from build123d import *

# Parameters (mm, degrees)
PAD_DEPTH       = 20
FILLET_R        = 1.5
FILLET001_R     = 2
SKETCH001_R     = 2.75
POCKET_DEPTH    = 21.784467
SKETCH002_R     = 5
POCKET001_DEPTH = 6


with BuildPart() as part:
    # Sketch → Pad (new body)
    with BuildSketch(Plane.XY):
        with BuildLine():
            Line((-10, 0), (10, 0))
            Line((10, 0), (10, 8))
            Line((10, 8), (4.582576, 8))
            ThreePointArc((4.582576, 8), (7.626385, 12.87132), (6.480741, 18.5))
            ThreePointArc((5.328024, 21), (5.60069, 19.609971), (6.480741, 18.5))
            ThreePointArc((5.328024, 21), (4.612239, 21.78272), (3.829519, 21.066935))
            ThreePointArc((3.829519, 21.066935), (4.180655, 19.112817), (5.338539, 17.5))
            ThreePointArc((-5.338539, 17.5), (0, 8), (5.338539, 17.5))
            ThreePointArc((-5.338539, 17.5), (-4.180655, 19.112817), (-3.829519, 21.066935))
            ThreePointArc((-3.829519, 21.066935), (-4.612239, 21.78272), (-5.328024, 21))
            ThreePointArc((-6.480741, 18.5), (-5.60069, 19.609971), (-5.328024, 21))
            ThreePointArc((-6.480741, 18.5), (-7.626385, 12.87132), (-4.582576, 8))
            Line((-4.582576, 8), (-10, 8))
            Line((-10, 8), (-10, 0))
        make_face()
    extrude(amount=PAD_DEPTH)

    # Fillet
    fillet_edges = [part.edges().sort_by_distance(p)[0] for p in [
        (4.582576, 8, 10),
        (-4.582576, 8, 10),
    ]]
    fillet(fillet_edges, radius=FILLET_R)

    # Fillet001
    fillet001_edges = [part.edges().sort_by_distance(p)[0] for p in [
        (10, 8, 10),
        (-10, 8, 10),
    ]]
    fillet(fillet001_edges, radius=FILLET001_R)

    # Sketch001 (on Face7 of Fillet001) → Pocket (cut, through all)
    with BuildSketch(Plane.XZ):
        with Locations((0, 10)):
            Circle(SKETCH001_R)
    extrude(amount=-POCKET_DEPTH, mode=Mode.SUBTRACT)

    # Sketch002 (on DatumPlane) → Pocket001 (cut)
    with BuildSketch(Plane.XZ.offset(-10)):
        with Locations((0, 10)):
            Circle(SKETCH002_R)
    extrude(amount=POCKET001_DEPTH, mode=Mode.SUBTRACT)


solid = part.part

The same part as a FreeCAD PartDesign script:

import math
import FreeCAD as App
import Part
import Sketcher
from FreeCAD import Vector
Q = App.Units.Quantity


def edges_at(feature, points):
    """Names of the edges that pass closest to the given points."""
    edges = feature.Shape.Edges
    near = lambda p: min(range(len(edges)), key=lambda i: edges[i].distToShape(Part.Vertex(*p))[0])
    return sorted({f"Edge{near(p) + 1}" for p in points})

doc = App.newDocument("Part")
body = doc.addObject("PartDesign::Body", "Body")

sketch1 = body.newObject("Sketcher::SketchObject", "Sketch")
sketch1.AttachmentSupport = (doc.getObject("XY_Plane"), [""])
sketch1.MapMode = "FlatFace"
sketch1.addGeometry(Part.LineSegment(Vector(-10, 0, 0), Vector(10, 0, 0)), False)
sketch1.addGeometry(Part.LineSegment(Vector(10, 0, 0), Vector(10, 8, 0)), False)
sketch1.addGeometry(Part.LineSegment(Vector(10, 8, 0), Vector(4.6, 8, 0)), False)
sketch1.addGeometry(Part.ArcOfCircle(Part.Circle(Vector(0, 14.2, 0), Vector(0, 0, 1), 7.7), math.radians(-54), math.radians(33)), False)
sketch1.addGeometry(Part.ArcOfCircle(Part.Circle(Vector(8.3, 20.9, 0), Vector(0, 0, 1), 3), math.radians(177), math.radians(232)), False)
sketch1.addGeometry(Part.ArcOfCircle(Part.Circle(Vector(4.6, 21, 0), Vector(0, 0, 1), 0.7), math.radians(-3), math.radians(177)), False)
sketch1.addGeometry(Part.ArcOfCircle(Part.Circle(Vector(8.3, 20.9, 0), Vector(0, 0, 1), 4.5), math.radians(177), math.radians(228)), False)
sketch1.addGeometry(Part.ArcOfCircle(Part.Circle(Vector(0, 14.2, 0), Vector(0, 0, 1), 6.2), math.radians(149), math.radians(391)), False)
sketch1.addGeometry(Part.ArcOfCircle(Part.Circle(Vector(-8.3, 20.9, 0), Vector(0, 0, 1), 4.5), math.radians(-48), math.radians(3)), False)
sketch1.addGeometry(Part.ArcOfCircle(Part.Circle(Vector(-4.6, 21, 0), Vector(0, 0, 1), 0.7), math.radians(3), math.radians(183)), False)
sketch1.addGeometry(Part.ArcOfCircle(Part.Circle(Vector(-8.3, 20.9, 0), Vector(0, 0, 1), 3), math.radians(-52), math.radians(3)), False)
sketch1.addGeometry(Part.ArcOfCircle(Part.Circle(Vector(0, 14.2, 0), Vector(0, 0, 1), 7.7), math.radians(147), math.radians(234)), False)
sketch1.addGeometry(Part.LineSegment(Vector(-4.6, 8, 0), Vector(-10, 8, 0)), False)
sketch1.addGeometry(Part.LineSegment(Vector(-10, 8, 0), Vector(-10, 0, 0)), False)
sketch1.addConstraint(Sketcher.Constraint("Coincident", 0, 2, 1, 1))
sketch1.addConstraint(Sketcher.Constraint("Coincident", 1, 2, 2, 1))
sketch1.addConstraint(Sketcher.Constraint("Coincident", 2, 2, 3, 1))
sketch1.addConstraint(Sketcher.Constraint("Coincident", 3, 2, 4, 2))
sketch1.addConstraint(Sketcher.Constraint("Tangent", 4, 1, 5, 1))
sketch1.addConstraint(Sketcher.Constraint("Tangent", 5, 2, 6, 1))
sketch1.addConstraint(Sketcher.Constraint("Coincident", 6, 2, 7, 2))
sketch1.addConstraint(Sketcher.Constraint("Coincident", 7, 1, 8, 1))
sketch1.addConstraint(Sketcher.Constraint("Tangent", 8, 2, 9, 1))
sketch1.addConstraint(Sketcher.Constraint("Tangent", 9, 2, 10, 2))
sketch1.addConstraint(Sketcher.Constraint("Coincident", 10, 1, 11, 1))
sketch1.addConstraint(Sketcher.Constraint("Coincident", 11, 2, 12, 1))
sketch1.addConstraint(Sketcher.Constraint("Coincident", 12, 2, 13, 1))
sketch1.addConstraint(Sketcher.Constraint("Coincident", 13, 2, 0, 1))
sketch1.addConstraint(Sketcher.Constraint("Horizontal", 0))
sketch1.addConstraint(Sketcher.Constraint("Vertical", 1))
sketch1.addConstraint(Sketcher.Constraint("Horizontal", 2))
sketch1.addConstraint(Sketcher.Constraint("Horizontal", 12))
sketch1.addConstraint(Sketcher.Constraint("Vertical", 13))
sketch1.addConstraint(Sketcher.Constraint("Coincident", 6, 3, 4, 3))
sketch1.addConstraint(Sketcher.Constraint("Coincident", 7, 3, 3, 3))
sketch1.addConstraint(Sketcher.Constraint("Coincident", 10, 3, 8, 3))
sketch1.addConstraint(Sketcher.Constraint("Coincident", 11, 3, 3, 3))
sketch1.addConstraint(Sketcher.Constraint("Equal", 6, 8))
sketch1.addConstraint(Sketcher.Constraint("Equal", 5, 9))
sketch1.addConstraint(Sketcher.Constraint("Equal", 3, 11))
sketch1.addConstraint(Sketcher.Constraint("Symmetric", 0, 2, 13, 2, -1, 1))
sketch1.addConstraint(Sketcher.Constraint("Symmetric", 4, 3, 8, 3, -2))
sketch1.addConstraint(Sketcher.Constraint("Symmetric", 2, 2, 11, 2, -2))
sketch1.addConstraint(Sketcher.Constraint("Horizontal", 5, 3, 9, 3))
sketch1.addConstraint(Sketcher.Constraint("DistanceX", 0, 1, 0, 2, Q("20 mm")))
sketch1.addConstraint(Sketcher.Constraint("DistanceY", 1, 1, 1, 2, Q("8 mm")))
sketch1.addConstraint(Sketcher.Constraint("Radius", 3, Q("7.75 mm")))
sketch1.addConstraint(Sketcher.Constraint("Radius", 5, Q("0.75 mm")))
sketch1.addConstraint(Sketcher.Constraint("Radius", 7, Q("6.25 mm")))
sketch1.addConstraint(Sketcher.Constraint("DistanceY", -1, 1, 4, 1, Q("21 mm")))
sketch1.addConstraint(Sketcher.Constraint("DistanceY", 6, 2, 3, 2, Q("1 mm")))
sketch1.addConstraint(Sketcher.Constraint("DistanceY", -1, 1, 3, 2, Q("18.5 mm")))
sketch1.addConstraint(Sketcher.Constraint("DistanceY", -1, 1, 3, 3, Q("14.25 mm")))
sketch1.addConstraint(Sketcher.Constraint("Radius", 4, Q("3.000003 mm")))
pad1 = body.newObject("PartDesign::Pad", "Pad")
pad1.Profile = sketch1
pad1.Length = 20
doc.recompute()

fillet = body.newObject("PartDesign::Fillet", "Fillet")
fillet.Base = (pad1, edges_at(pad1, [(4.583, 8, 10), (-4.583, 8, 10)]))
fillet.Radius = 1.5
doc.recompute()

fillet2 = body.newObject("PartDesign::Fillet", "Fillet001")
fillet2.Base = (fillet, edges_at(fillet, [(10, 8, 10), (-10, 8, 10)]))
fillet2.Radius = 2

sketch2 = body.newObject("Sketcher::SketchObject", "Sketch001")
sketch2.AttachmentSupport = (doc.getObject("XZ_Plane"), [""])
sketch2.MapMode = "FlatFace"
sketch2.addGeometry(Part.Circle(Vector(0, 10, 0), Vector(0, 0, 1), 2.8), False)
sketch2.addConstraint(Sketcher.Constraint("PointOnObject", 0, 3, -2))
sketch2.addConstraint(Sketcher.Constraint("Diameter", 0, Q("5.5 mm")))
sketch2.addConstraint(Sketcher.Constraint("DistanceY", -1, 1, 0, 3, Q("10 mm")))
pocket1 = body.newObject("PartDesign::Pocket", "Pocket")
pocket1.Profile = sketch2
pocket1.Type = "ThroughAll"

sketch3 = body.newObject("Sketcher::SketchObject", "Sketch002")
sketch3.AttachmentSupport = (doc.getObject("XZ_Plane"), [""])
sketch3.MapMode = "FlatFace"
sketch3.AttachmentOffset = App.Placement(Vector(0, 0, -10), App.Rotation())
sketch3.addGeometry(Part.Circle(Vector(0, 10, 0), Vector(0, 0, 1), 5), False)
sketch3.addConstraint(Sketcher.Constraint("PointOnObject", 0, 3, -2))
sketch3.addConstraint(Sketcher.Constraint("Diameter", 0, Q("10 mm")))
sketch3.addConstraint(Sketcher.Constraint("DistanceY", -1, 1, 0, 3, Q("10 mm")))
pocket2 = body.newObject("PartDesign::Pocket", "Pocket001")
pocket2.Profile = sketch3
pocket2.Length = 6
pocket2.Reversed = True

doc.recompute()
